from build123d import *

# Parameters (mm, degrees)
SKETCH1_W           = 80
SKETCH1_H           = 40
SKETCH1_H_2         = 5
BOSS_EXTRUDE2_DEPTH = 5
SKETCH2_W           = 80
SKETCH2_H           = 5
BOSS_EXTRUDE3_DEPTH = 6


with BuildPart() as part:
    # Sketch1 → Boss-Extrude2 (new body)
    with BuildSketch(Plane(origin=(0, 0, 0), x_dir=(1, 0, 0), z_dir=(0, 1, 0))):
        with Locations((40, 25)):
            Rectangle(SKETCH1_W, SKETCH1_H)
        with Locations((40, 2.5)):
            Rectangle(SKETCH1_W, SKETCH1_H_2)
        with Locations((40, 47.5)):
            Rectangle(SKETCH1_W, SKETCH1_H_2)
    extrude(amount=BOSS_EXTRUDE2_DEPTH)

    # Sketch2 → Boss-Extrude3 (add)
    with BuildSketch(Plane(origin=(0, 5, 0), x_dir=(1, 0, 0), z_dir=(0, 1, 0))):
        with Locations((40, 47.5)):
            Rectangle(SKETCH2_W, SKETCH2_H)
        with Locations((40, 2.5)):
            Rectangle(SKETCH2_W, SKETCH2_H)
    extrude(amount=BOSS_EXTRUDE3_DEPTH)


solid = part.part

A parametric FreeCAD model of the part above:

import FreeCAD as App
import Part
import Sketcher

V = App.Vector


def add_polygon(sketch, points):
    """Adds a closed chain of lines whose ends are joined by coincident constraints."""
    first, n = sketch.GeometryCount, len(points)
    for a, b in zip(points, points[1:] + points[:1]):
        sketch.addGeometry(Part.LineSegment(App.Vector(*a, 0), App.Vector(*b, 0)), False)
    for i in range(n):
        sketch.addConstraint(Sketcher.Constraint("Coincident", first + i, 2, first + (i + 1) % n, 1))

doc = App.newDocument("Part")
body = doc.addObject("PartDesign::Body", "Body")

# Sketch on XZ plane
sketch1 = doc.addObject("Sketcher::SketchObject", "Sketch")
body.addObject(sketch1)
sketch1.AttachmentSupport = (doc.XZ_Plane, [""])
sketch1.MapMode = "FlatFace"
add_polygon(sketch1, [(0, 0), (80, 0), (80, -50), (0, -50)])  # lines 0-3
sketch1.addConstraint(Sketcher.Constraint("Horizontal", 0))
sketch1.addConstraint(Sketcher.Constraint("Vertical", 1))
sketch1.addConstraint(Sketcher.Constraint("Horizontal", 2))
sketch1.addConstraint(Sketcher.Constraint("Vertical", 3))
sketch1.addConstraint(Sketcher.Constraint("Coincident", 3, 2, -1, 1))
sketch1.addConstraint(Sketcher.Constraint("DistanceX", 0, 1, 0, 2, 80.0))
sketch1.addConstraint(Sketcher.Constraint("DistanceY", 1, 2, 1, 1, 50.0))
pad1 = doc.addObject("PartDesign::Pad", "Pad")
body.addObject(pad1)
pad1.Profile = sketch1
pad1.Length = 5
pad1.Reversed = True

# Sketch on XZ plane
sketch2 = doc.addObject("Sketcher::SketchObject", "Sketch001")
body.addObject(sketch2)
sketch2.AttachmentSupport = (doc.XZ_Plane, [""])
sketch2.MapMode = "FlatFace"
sketch2.AttachmentOffset = App.Placement(V(0, 0, -5), App.Rotation())
add_polygon(sketch2, [(0, -50), (0, -45), (80, -45), (80, -50)])  # lines 0-3
add_polygon(sketch2, [(0, -5), (0, 0), (80, 0), (80, -5)])  # lines 4-7
sketch2.addConstraint(Sketcher.Constraint("Vertical", 0))
sketch2.addConstraint(Sketcher.Constraint("Horizontal", 1))
sketch2.addConstraint(Sketcher.Constraint("Vertical", 2))
sketch2.addConstraint(Sketcher.Constraint("Horizontal", 3))
sketch2.addConstraint(Sketcher.Constraint("Vertical", 4))
sketch2.addConstraint(Sketcher.Constraint("Horizontal", 5))
sketch2.addConstraint(Sketcher.Constraint("Vertical", 6))
sketch2.addConstraint(Sketcher.Constraint("Horizontal", 7))
sketch2.addConstraint(Sketcher.Constraint("Coincident", 4, 2, -1, 1))
sketch2.addConstraint(Sketcher.Constraint("PointOnObject", 0, 2, -2))
sketch2.addConstraint(Sketcher.Constraint("Vertical", 2, 2, 5, 2))
sketch2.addConstraint(Sketcher.Constraint("Equal", 2, 4))
sketch2.addConstraint(Sketcher.Constraint("DistanceX", 1, 1, 1, 2, 80.0))
sketch2.addConstraint(Sketcher.Constraint("DistanceY", 0, 1, 0, 2, 5.0))
sketch2.addConstraint(Sketcher.Constraint("DistanceY", 0, 2, -1, 1, 45.0))
pad2 = doc.addObject("PartDesign::Pad", "Pad001")
body.addObject(pad2)
pad2.Profile = sketch2
pad2.Length = 6
pad2.Reversed = True

doc.recompute()
